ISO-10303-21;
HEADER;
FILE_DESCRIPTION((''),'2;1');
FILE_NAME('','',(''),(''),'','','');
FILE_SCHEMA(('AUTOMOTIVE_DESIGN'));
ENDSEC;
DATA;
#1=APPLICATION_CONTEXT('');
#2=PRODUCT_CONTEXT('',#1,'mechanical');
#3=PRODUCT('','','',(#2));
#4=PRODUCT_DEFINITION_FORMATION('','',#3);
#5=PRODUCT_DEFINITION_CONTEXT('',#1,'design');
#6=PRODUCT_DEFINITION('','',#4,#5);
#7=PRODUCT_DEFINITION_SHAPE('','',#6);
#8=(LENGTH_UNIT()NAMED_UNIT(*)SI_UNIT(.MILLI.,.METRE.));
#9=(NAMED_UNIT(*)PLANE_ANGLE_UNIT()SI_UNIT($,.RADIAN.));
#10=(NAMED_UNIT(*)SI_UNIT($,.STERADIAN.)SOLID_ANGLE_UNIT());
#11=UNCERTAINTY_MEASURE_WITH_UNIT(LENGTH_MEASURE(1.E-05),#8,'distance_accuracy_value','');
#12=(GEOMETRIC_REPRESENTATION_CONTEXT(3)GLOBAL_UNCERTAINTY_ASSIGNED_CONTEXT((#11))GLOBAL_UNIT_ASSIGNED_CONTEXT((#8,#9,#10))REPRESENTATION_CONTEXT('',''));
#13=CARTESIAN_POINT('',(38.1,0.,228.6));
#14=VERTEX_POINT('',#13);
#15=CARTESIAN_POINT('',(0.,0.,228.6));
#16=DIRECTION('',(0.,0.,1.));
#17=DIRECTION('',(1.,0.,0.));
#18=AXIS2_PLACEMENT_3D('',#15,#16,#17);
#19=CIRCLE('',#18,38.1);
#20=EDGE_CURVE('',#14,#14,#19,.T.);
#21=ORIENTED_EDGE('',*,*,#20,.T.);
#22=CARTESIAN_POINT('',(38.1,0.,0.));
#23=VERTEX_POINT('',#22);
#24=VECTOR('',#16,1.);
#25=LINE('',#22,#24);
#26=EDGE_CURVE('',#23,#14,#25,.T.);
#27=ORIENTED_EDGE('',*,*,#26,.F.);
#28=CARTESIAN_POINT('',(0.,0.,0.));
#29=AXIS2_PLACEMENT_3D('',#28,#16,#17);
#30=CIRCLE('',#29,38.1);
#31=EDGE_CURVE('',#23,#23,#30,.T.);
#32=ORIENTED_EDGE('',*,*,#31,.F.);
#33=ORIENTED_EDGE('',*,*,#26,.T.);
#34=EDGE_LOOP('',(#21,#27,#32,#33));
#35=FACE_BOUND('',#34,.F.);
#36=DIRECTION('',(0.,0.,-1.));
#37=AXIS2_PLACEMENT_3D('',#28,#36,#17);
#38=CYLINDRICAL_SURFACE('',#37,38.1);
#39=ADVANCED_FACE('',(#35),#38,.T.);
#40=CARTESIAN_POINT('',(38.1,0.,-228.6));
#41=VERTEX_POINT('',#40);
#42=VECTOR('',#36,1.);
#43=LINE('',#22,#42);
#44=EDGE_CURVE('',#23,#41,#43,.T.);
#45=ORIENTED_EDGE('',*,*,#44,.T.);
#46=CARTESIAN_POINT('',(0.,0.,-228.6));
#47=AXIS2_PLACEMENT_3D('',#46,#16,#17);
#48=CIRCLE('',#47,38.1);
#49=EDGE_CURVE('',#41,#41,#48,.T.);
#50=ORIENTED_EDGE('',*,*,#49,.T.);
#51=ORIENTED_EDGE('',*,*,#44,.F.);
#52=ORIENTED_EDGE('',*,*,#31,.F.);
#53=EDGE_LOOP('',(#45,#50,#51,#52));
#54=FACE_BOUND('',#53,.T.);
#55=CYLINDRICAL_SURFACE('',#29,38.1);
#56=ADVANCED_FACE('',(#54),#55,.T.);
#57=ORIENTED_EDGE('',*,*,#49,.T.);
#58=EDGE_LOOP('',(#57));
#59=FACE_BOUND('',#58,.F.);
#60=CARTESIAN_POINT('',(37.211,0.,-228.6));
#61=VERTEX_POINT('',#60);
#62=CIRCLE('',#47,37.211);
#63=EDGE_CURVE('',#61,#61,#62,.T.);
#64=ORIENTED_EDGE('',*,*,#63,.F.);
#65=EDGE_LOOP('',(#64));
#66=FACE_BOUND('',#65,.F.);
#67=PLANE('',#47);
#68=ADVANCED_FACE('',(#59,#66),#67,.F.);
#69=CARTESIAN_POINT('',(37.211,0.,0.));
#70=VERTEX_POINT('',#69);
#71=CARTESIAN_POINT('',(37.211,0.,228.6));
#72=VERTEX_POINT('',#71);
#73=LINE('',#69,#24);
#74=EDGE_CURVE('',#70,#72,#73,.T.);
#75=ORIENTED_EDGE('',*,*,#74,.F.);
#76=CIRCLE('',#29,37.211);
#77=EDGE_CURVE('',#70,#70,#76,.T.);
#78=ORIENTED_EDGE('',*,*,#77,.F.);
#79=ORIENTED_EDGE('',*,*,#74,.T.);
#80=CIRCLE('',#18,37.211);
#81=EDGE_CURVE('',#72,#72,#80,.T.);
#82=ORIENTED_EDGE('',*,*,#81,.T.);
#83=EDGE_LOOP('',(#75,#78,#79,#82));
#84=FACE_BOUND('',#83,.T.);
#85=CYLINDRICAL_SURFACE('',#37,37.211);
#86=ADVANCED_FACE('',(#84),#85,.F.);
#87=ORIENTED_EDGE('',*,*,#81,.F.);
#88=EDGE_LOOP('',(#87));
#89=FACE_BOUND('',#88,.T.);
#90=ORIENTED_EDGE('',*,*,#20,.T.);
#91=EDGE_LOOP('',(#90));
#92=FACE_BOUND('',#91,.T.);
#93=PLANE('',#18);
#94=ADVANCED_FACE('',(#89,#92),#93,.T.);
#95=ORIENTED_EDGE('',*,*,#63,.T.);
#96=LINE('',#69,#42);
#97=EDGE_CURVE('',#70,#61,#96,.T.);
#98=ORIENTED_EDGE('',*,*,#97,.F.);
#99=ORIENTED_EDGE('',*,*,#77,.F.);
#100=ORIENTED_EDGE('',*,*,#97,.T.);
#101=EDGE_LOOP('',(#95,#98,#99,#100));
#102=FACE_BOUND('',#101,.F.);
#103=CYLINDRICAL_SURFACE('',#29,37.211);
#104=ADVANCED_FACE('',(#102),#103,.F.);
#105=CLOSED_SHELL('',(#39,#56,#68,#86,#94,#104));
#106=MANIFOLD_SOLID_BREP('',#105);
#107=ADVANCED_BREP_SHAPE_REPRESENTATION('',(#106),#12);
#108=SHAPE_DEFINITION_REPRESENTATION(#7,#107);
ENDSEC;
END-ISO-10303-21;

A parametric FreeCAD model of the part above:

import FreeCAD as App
import Part
import Sketcher

V = App.Vector
Q = App.Units.Quantity

doc = App.newDocument("Part")
body = doc.addObject("PartDesign::Body", "Body")

# Sketch on XY plane
sketch1 = body.newObject("Sketcher::SketchObject", "Sketch")
sketch1.AttachmentSupport = (doc.getObject("XY_Plane"), [""])
sketch1.MapMode = "FlatFace"
sketch1.addGeometry([
    Part.Circle(V(0, 0, 0), V(0, 0, 1), 38),
    Part.Circle(V(0, 0, 0), V(0, 0, 1), 37),
], False)
sketch1.addConstraint([
    Sketcher.Constraint("Coincident", 0, 3, -1, 1),
    Sketcher.Constraint("Coincident", 1, 3, -1, 1),
    Sketcher.Constraint("Diameter", 0, Q("3 in")),
    Sketcher.Constraint("Diameter", 1, Q("2.93 in")),
])
pad1 = body.newObject("PartDesign::Pad", "Pad")
pad1.Profile = sketch1
pad1.Length = Q("18 in")
pad1.Midplane = True

doc.recompute()
